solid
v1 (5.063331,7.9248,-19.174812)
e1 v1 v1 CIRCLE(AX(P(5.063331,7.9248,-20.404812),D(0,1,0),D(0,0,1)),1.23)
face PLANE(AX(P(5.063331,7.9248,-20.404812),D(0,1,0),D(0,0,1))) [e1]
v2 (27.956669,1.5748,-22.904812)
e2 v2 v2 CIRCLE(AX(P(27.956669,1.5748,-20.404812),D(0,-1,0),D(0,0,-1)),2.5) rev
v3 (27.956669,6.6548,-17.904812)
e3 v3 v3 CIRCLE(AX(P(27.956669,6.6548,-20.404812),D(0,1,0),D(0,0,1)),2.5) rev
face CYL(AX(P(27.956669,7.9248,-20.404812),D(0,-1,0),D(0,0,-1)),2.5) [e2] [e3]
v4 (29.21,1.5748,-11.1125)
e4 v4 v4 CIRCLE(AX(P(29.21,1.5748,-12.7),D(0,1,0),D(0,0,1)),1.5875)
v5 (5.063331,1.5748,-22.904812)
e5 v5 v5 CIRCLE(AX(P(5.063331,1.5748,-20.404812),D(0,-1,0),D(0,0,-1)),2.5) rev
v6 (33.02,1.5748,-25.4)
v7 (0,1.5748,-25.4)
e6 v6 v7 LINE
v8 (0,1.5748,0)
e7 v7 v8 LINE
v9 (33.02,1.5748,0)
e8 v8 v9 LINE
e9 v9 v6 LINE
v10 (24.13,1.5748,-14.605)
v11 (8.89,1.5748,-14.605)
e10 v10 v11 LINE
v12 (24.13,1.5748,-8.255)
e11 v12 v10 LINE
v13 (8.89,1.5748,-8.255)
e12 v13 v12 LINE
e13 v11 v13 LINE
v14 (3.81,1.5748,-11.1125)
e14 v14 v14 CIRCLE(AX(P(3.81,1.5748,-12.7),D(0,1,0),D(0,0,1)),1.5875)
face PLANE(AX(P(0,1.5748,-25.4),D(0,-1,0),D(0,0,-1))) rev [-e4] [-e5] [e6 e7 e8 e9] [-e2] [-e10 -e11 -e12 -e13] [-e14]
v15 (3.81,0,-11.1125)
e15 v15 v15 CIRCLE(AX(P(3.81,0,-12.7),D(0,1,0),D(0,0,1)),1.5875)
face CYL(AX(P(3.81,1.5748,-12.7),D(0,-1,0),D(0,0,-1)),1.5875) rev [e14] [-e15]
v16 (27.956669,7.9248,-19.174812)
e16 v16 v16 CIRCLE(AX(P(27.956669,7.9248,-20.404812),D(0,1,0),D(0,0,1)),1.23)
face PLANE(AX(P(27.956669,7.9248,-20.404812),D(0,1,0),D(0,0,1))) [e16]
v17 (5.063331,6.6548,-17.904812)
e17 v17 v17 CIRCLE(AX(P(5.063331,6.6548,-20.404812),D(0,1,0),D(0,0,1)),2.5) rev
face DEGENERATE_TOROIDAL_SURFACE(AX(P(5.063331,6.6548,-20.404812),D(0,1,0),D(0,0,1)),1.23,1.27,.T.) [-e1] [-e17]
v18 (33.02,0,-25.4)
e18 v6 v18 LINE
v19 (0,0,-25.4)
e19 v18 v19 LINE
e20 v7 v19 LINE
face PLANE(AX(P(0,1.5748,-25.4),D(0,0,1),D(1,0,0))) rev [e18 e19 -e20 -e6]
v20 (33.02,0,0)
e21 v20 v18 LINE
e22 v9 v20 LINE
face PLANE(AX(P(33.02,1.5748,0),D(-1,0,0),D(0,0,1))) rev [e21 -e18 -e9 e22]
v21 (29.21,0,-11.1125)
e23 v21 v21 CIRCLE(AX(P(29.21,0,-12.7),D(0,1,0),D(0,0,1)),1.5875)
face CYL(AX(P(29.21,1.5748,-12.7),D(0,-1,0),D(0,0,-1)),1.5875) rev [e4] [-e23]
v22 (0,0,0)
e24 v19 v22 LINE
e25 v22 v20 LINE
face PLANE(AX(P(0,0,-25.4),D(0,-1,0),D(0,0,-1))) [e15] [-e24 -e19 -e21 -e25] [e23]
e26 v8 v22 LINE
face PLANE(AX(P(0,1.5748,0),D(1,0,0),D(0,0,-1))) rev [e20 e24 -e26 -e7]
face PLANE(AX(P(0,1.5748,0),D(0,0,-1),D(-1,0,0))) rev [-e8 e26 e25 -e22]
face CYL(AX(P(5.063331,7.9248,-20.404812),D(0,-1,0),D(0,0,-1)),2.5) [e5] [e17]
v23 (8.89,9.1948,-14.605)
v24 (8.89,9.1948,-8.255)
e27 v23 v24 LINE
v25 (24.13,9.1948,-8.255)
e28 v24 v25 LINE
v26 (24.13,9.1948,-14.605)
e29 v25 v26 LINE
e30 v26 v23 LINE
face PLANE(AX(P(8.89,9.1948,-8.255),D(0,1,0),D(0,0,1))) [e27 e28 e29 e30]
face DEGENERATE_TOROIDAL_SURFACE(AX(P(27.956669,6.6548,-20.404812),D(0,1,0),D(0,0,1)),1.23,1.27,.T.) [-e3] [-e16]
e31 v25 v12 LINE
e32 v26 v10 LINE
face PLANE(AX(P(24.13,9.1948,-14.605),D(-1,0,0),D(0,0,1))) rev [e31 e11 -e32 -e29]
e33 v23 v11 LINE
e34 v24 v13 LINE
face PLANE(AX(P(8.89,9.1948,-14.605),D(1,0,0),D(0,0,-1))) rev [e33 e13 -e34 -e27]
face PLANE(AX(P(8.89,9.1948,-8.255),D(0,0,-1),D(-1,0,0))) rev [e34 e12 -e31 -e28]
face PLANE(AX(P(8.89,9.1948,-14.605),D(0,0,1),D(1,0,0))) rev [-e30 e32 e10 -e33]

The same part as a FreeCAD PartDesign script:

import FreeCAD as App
import Part
import Sketcher
from FreeCAD import Vector
Q = App.Units.Quantity


def edges_at(feature, points):
    """Names of the edges that pass closest to the given points."""
    edges = feature.Shape.Edges
    near = lambda p: min(range(len(edges)), key=lambda i: edges[i].distToShape(Part.Vertex(*p))[0])
    return sorted({f"Edge{near(p) + 1}" for p in points})

doc = App.newDocument("Part")
body = doc.addObject("PartDesign::Body", "Body")

sketch1 = body.newObject("Sketcher::SketchObject", "Sketch")
sketch1.AttachmentSupport = (doc.getObject("XZ_Plane"), [""])
sketch1.MapMode = "FlatFace"
sketch1.addGeometry([
    Part.LineSegment(Vector(0, -25.4, 0), Vector(0, 0, 0)),
    Part.LineSegment(Vector(0, 0, 0), Vector(33, 0, 0)),
    Part.LineSegment(Vector(33, 0, 0), Vector(33, -25.4, 0)),
    Part.LineSegment(Vector(33, -25.4, 0), Vector(0, -25.4, 0)),
    Part.Circle(Vector(3.8, -12.7, 0), Vector(0, 0, 1), 1.6),
    Part.Circle(Vector(29.2, -12.7, 0), Vector(0, 0, 1), 1.6),
], False)
sketch1.addConstraint([
    Sketcher.Constraint("Coincident", 0, 2, 1, 1),
    Sketcher.Constraint("Coincident", 1, 2, 2, 1),
    Sketcher.Constraint("Coincident", 2, 2, 3, 1),
    Sketcher.Constraint("Coincident", 3, 2, 0, 1),
    Sketcher.Constraint("Vertical", 0),
    Sketcher.Constraint("Horizontal", 1),
    Sketcher.Constraint("Vertical", 2),
    Sketcher.Constraint("Horizontal", 3),
    Sketcher.Constraint("Coincident", 0, 2, -1, 1),
    Sketcher.Constraint("Equal", 4, 5),
    Sketcher.Constraint("Horizontal", 4, 3, 5, 3),
    Sketcher.Constraint("DistanceY", 0, 1, 0, 2, Q("1 in")),
    Sketcher.Constraint("Diameter", 4, Q("0.125 in")),
    Sketcher.Constraint("DistanceX", 1, 1, 1, 2, Q("1.3 in")),
    Sketcher.Constraint("DistanceX", 4, 3, 5, 3, Q("1 in")),
    Sketcher.Constraint("DistanceY", 4, 3, -1, 1, Q("0.5 in")),
    Sketcher.Constraint("DistanceX", -1, 1, 4, 3, Q("0.15 in")),
])
pad1 = body.newObject("PartDesign::Pad", "Pad")
pad1.Profile = sketch1
pad1.Length = Q("0.062 in")
pad1.Reversed = True

sketch2 = body.newObject("Sketcher::SketchObject", "Sketch001")
sketch2.AttachmentSupport = (doc.getObject("XZ_Plane"), [""])
sketch2.MapMode = "FlatFace"
sketch2.AttachmentOffset = App.Placement(Vector(0, 0, -0.062 * 25.4), App.Rotation())
sketch2.addGeometry([
    Part.LineSegment(Vector(9, -15, 0), Vector(9, -8, 0)),
    Part.LineSegment(Vector(9, -8, 0), Vector(24, -8, 0)),
    Part.LineSegment(Vector(24, -8, 0), Vector(24, -15, 0)),
    Part.LineSegment(Vector(24, -15, 0), Vector(9, -15, 0)),
], False)
sketch2.addConstraint([
    Sketcher.Constraint("Coincident", 0, 2, 1, 1),
    Sketcher.Constraint("Coincident", 1, 2, 2, 1),
    Sketcher.Constraint("Coincident", 2, 2, 3, 1),
    Sketcher.Constraint("Coincident", 3, 2, 0, 1),
    Sketcher.Constraint("Vertical", 0),
    Sketcher.Constraint("Horizontal", 1),
    Sketcher.Constraint("Vertical", 2),
    Sketcher.Constraint("Horizontal", 3),
    Sketcher.Constraint("DistanceX", 1, 1, 1, 2, Q("0.6 in")),
    Sketcher.Constraint("DistanceY", 0, 1, 0, 2, Q("0.25 in")),
    Sketcher.Constraint("DistanceX", -1, 1, 0, 2, Q("0.35 in")),
    Sketcher.Constraint("DistanceY", 0, 2, -1, 1, Q("0.325 in")),
])
pad2 = body.newObject("PartDesign::Pad", "Pad001")
pad2.Profile = sketch2
pad2.Length = Q("0.3 in")
pad2.Reversed = True

sketch3 = body.newObject("Sketcher::SketchObject", "Sketch002")
sketch3.AttachmentSupport = (doc.getObject("XZ_Plane"), [""])
sketch3.MapMode = "FlatFace"
sketch3.AttachmentOffset = App.Placement(Vector(0, 0, -0.062 * 25.4), App.Rotation())
sketch3.addGeometry([
    Part.Circle(Vector(5.1, -20.4, 0), Vector(0, 0, 1), 2.5),
    Part.Circle(Vector(28, -20.4, 0), Vector(0, 0, 1), 2.5),
], False)
sketch3.addConstraint([
    Sketcher.Constraint("Equal", 0, 1),
    Sketcher.Constraint("Horizontal", 0, 3, 1, 3),
    Sketcher.Constraint("Diameter", 0, Q("5 mm")),
    Sketcher.Constraint("DistanceX", -1, 1, 0, 3, Q("5.063331 mm")),
    Sketcher.Constraint("DistanceX", -1, 1, 1, 3, Q("27.956669 mm")),
    Sketcher.Constraint("DistanceY", 0, 3, -1, 1, Q("20.404812 mm")),
])
pad3 = body.newObject("PartDesign::Pad", "Pad002")
pad3.Profile = sketch3
pad3.Length = Q("0.25 in")
pad3.Reversed = True
doc.recompute()

fillet = body.newObject("PartDesign::Fillet", "Fillet")
fillet.Base = (pad3, edges_at(pad3, [(5.063, 7.925, -17.905), (27.957, 7.925, -17.905)]))
fillet.Radius = Q("0.05 in")

doc.recompute()
